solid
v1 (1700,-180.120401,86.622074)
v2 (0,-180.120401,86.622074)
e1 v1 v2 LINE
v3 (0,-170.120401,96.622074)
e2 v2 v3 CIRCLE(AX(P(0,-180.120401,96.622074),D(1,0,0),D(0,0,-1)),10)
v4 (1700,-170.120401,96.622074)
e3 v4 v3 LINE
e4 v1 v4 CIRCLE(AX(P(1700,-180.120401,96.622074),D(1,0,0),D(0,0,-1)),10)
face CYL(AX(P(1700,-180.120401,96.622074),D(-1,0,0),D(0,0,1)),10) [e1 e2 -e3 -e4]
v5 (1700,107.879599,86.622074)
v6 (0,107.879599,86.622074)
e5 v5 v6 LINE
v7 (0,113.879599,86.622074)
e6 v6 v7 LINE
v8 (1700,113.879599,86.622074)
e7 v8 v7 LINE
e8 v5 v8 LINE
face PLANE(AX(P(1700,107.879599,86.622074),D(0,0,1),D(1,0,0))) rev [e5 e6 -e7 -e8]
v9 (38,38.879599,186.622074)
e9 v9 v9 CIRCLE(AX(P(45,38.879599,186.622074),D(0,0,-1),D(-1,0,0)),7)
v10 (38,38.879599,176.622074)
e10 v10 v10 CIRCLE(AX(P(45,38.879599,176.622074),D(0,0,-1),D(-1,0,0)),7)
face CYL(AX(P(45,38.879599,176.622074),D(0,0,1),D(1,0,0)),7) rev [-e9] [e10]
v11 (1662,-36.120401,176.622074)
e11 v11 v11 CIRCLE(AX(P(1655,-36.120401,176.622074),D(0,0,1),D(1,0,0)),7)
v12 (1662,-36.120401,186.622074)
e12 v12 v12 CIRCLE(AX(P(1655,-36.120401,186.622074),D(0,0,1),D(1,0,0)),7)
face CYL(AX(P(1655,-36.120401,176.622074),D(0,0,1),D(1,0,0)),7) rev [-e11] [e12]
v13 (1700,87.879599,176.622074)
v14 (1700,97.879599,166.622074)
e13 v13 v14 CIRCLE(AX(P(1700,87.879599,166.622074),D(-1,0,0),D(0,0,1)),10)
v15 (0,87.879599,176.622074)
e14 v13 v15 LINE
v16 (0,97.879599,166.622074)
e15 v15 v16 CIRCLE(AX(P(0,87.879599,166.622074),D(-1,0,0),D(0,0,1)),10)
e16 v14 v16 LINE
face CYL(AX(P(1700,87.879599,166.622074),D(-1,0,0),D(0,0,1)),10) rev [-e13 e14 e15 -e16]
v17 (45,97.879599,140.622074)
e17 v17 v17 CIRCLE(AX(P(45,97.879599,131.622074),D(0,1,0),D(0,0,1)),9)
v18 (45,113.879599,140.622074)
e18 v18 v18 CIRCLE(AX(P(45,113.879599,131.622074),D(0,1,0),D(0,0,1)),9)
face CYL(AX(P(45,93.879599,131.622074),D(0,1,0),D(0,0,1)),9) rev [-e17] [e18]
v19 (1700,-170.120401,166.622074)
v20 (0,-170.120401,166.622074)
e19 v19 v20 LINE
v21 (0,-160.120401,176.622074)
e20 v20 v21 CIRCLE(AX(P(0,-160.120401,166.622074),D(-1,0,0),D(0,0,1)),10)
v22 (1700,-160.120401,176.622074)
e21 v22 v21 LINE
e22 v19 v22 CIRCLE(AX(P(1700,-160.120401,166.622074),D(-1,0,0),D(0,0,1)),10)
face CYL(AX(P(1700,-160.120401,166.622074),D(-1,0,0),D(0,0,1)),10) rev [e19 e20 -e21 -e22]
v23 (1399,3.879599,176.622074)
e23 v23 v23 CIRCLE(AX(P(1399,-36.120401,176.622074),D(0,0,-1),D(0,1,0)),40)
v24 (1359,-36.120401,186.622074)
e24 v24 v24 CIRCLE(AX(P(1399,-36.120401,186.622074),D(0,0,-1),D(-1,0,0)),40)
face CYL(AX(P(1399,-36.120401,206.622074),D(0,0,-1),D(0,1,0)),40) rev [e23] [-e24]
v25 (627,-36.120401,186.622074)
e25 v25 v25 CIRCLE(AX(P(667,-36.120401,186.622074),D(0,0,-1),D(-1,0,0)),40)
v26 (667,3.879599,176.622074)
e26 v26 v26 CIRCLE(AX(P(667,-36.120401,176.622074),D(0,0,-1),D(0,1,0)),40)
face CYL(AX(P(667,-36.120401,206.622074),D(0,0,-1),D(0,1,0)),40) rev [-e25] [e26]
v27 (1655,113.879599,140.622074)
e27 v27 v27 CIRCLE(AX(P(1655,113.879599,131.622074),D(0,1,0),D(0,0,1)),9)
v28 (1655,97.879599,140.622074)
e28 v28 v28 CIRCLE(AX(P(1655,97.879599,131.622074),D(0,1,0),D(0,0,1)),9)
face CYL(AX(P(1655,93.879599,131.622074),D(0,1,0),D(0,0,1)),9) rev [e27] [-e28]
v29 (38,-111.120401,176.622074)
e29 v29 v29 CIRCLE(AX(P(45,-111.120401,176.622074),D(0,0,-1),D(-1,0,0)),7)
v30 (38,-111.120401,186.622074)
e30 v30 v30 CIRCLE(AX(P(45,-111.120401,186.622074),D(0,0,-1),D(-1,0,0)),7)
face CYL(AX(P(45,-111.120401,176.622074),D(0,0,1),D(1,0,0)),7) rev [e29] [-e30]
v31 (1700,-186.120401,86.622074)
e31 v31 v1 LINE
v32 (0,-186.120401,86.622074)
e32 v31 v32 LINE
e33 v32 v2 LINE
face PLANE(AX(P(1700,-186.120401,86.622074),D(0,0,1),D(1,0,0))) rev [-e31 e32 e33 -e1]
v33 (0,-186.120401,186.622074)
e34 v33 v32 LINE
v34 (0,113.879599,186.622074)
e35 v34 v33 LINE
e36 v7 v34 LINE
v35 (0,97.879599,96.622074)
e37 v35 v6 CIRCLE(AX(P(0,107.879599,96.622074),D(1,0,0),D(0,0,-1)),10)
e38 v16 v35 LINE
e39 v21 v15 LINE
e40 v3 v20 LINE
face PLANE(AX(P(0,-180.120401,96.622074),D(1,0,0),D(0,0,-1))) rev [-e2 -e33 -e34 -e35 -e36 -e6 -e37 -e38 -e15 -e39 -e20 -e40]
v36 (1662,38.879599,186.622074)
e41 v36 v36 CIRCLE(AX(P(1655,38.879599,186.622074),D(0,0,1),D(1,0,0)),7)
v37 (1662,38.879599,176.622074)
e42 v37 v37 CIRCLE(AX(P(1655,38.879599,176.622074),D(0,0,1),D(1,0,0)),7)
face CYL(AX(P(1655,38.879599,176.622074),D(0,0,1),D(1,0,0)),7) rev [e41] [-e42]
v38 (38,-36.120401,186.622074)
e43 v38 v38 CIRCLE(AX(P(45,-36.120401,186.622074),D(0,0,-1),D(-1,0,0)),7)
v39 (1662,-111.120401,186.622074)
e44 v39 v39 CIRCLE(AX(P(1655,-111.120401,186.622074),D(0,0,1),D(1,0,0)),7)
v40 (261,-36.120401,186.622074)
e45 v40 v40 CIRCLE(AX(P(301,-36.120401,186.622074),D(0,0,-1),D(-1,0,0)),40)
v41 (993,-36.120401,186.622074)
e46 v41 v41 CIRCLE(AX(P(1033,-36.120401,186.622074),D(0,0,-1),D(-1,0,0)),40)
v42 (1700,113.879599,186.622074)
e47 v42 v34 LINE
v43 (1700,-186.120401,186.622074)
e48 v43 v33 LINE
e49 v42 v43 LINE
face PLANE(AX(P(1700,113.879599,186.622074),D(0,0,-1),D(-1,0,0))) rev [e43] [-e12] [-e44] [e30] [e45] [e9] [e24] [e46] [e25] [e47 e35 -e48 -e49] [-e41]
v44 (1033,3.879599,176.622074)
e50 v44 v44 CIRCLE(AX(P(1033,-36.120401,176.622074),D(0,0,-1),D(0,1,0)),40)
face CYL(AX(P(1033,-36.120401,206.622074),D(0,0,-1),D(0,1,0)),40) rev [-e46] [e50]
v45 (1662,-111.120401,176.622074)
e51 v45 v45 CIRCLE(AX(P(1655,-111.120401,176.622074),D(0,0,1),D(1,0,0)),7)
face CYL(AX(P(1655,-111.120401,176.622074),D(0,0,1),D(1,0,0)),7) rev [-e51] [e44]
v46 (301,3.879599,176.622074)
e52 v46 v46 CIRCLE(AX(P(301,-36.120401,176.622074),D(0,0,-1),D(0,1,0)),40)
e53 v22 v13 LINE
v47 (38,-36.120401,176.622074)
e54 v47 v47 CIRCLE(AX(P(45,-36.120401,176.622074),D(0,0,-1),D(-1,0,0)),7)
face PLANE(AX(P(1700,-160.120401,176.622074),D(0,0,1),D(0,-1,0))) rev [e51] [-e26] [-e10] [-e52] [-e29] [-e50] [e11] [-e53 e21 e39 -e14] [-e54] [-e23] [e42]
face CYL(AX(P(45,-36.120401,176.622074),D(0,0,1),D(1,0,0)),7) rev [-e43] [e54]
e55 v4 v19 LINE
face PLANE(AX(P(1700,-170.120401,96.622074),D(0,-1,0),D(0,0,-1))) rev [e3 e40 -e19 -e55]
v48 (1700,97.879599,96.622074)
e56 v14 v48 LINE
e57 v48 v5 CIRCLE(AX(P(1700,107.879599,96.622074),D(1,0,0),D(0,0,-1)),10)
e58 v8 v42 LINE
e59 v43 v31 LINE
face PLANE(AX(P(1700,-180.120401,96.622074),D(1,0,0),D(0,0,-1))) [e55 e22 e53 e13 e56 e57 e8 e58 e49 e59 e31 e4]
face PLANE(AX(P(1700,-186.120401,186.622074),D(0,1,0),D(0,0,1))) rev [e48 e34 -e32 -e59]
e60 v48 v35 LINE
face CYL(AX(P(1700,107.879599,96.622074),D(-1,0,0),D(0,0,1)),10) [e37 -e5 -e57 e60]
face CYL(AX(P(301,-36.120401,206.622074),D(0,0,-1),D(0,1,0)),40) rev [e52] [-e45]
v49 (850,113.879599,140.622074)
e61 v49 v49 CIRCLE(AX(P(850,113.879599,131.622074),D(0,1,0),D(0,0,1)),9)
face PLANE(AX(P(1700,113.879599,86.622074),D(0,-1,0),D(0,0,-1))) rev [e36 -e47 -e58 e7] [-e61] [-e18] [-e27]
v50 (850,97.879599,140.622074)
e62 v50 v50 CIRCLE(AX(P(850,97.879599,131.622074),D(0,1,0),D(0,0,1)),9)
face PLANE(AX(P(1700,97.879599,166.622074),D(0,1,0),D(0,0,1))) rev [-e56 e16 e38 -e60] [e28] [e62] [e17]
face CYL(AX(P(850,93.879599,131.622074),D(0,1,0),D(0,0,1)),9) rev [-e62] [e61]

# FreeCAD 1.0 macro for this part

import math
import FreeCAD as App
import Part
import Sketcher
from FreeCAD import Vector
Q = App.Units.Quantity

doc = App.newDocument("Part")
params = doc.addObject("Spreadsheet::Sheet", "Params")
for row, (alias, value) in enumerate([
    ("sketch1_radius", "10 mm"),
    ("sketch1_width", "300 mm"),
    ("sketch1_width2", "6 mm"),
    ("sketch1_height", "100 mm"),
    ("sketch1_height2", "70 mm"),
    ("pad1_length", "1700 mm"),
    ("sketch2_diameter", "14 mm"),
    ("pocket1_length", "10 mm"),
    ("sketch3_diameter", "18 mm"),
    ("pocket2_length", "20 mm"),
    ("linearpattern_pitch", "805 mm"),
    ("sketch4_diameter", "80 mm"),
    ("pocket3_length", "30 mm"),
    ("linearpattern2_pitch", "366 mm"),
], start=1):
    params.set(f"A{row}", alias)
    params.set(f"B{row}", "=" + value)
    params.setAlias(f"B{row}", alias)

body = doc.addObject("PartDesign::Body", "Body")

sketch1 = doc.addObject("Sketcher::SketchObject", "Sketch")
body.addObject(sketch1)
sketch1.AttachmentSupport = (doc.YZ_Plane, [""])
sketch1.MapMode = "FlatFace"
sketch1.addGeometry([
    Part.LineSegment(Vector(113.879599, 86.622074, 0), Vector(113.879599, 186.622074, 0)),
    Part.LineSegment(Vector(113.879599, 186.622074, 0), Vector(-186.120401, 186.622074, 0)),
    Part.LineSegment(Vector(-186.120401, 186.622074, 0), Vector(-186.120401, 86.622074, 0)),
    Part.LineSegment(Vector(-186.120401, 86.622074, 0), Vector(-180.120401, 86.622074, 0)),
    Part.ArcOfCircle(Part.Circle(Vector(-180.120401, 96.622074, 0), Vector(0, 0, 1), 10), math.radians(-90), math.radians(0)),
    Part.LineSegment(Vector(-170.120401, 96.622074, 0), Vector(-170.120401, 166.622074, 0)),
    Part.ArcOfCircle(Part.Circle(Vector(-160.120401, 166.622074, 0), Vector(0, 0, 1), 10), math.radians(90), math.radians(180)),
    Part.LineSegment(Vector(-160.120401, 176.622074, 0), Vector(87.879599, 176.622074, 0)),
    Part.ArcOfCircle(Part.Circle(Vector(87.879599, 166.622074, 0), Vector(0, 0, 1), 10), math.radians(0), math.radians(90)),
    Part.LineSegment(Vector(97.879599, 166.622074, 0), Vector(97.879599, 96.622074, 0)),
    Part.ArcOfCircle(Part.Circle(Vector(107.879599, 96.622074, 0), Vector(0, 0, 1), 10), math.radians(180), math.radians(270)),
    Part.LineSegment(Vector(107.879599, 86.622074, 0), Vector(113.879599, 86.622074, 0)),
], False)
sketch1.addConstraint([
    Sketcher.Constraint("Coincident", 0, 2, 1, 1),
    Sketcher.Constraint("Coincident", 1, 2, 2, 1),
    Sketcher.Constraint("Coincident", 2, 2, 3, 1),
    Sketcher.Constraint("Tangent", 3, 2, 4, 1),
    Sketcher.Constraint("Tangent", 4, 2, 5, 1),
    Sketcher.Constraint("Tangent", 5, 2, 6, 2),
    Sketcher.Constraint("Tangent", 6, 1, 7, 1),
    Sketcher.Constraint("Tangent", 7, 2, 8, 2),
    Sketcher.Constraint("Tangent", 8, 1, 9, 1),
    Sketcher.Constraint("Tangent", 9, 2, 10, 1),
    Sketcher.Constraint("Tangent", 10, 2, 11, 1),
    Sketcher.Constraint("Coincident", 11, 2, 0, 1),
    Sketcher.Constraint("Vertical", 0),
    Sketcher.Constraint("Horizontal", 1),
    Sketcher.Constraint("Vertical", 2),
    Sketcher.Constraint("Horizontal", 3),
    Sketcher.Constraint("Vertical", 5),
    Sketcher.Constraint("Horizontal", 7),
    Sketcher.Constraint("Vertical", 9),
    Sketcher.Constraint("Horizontal", 11),
    Sketcher.Constraint("Equal", 4, 6),
    Sketcher.Constraint("Equal", 6, 8),
    Sketcher.Constraint("Equal", 8, 10),
    Sketcher.Constraint("Horizontal", 4, 3, 10, 3),
    Sketcher.Constraint("Equal", 3, 11),
    Sketcher.Constraint("Radius", 4, Q("10 mm")),
    Sketcher.Constraint("DistanceX", 1, 2, 1, 1, Q("300 mm")),
    Sketcher.Constraint("DistanceX", 3, 1, 3, 2, Q("6 mm")),
    Sketcher.Constraint("DistanceY", 0, 1, 0, 2, Q("100 mm")),
    Sketcher.Constraint("DistanceY", 5, 1, 5, 2, Q("70 mm")),
    Sketcher.Constraint("DistanceX", 4, 3, -1, 1, Q("180.120401 mm")),
    Sketcher.Constraint("DistanceY", -1, 1, 4, 3, Q("96.622074 mm")),
])
sketch1.setExpression("Constraints[25]", "Params.sketch1_radius")
sketch1.setExpression("Constraints[26]", "Params.sketch1_width")
sketch1.setExpression("Constraints[27]", "Params.sketch1_width2")
sketch1.setExpression("Constraints[28]", "Params.sketch1_height")
sketch1.setExpression("Constraints[29]", "Params.sketch1_height2")
pad1 = doc.addObject("PartDesign::Pad", "Pad")
body.addObject(pad1)
pad1.Profile = sketch1
pad1.setExpression("Length", "Params.pad1_length")

sketch2 = doc.addObject("Sketcher::SketchObject", "Sketch001")
body.addObject(sketch2)
sketch2.AttachmentSupport = (doc.XY_Plane, [""])
sketch2.MapMode = "FlatFace"
sketch2.AttachmentOffset = App.Placement(Vector(0, 0, 186.622074), App.Rotation())
sketch2.addGeometry([
    Part.Circle(Vector(1655, 38.879599, 0), Vector(0, 0, 1), 7),
    Part.Circle(Vector(1655, -36.120401, 0), Vector(0, 0, 1), 7),
    Part.Circle(Vector(1655, -111.120401, 0), Vector(0, 0, 1), 7),
], False)
sketch2.addConstraint([
    Sketcher.Constraint("Equal", 0, 1),
    Sketcher.Constraint("Equal", 1, 2),
    Sketcher.Constraint("Vertical", 0, 3, 1, 3),
    Sketcher.Constraint("Vertical", 1, 3, 2, 3),
    Sketcher.Constraint("Diameter", 0, Q("14 mm")),
    Sketcher.Constraint("DistanceX", -1, 1, 0, 3, Q("1655 mm")),
    Sketcher.Constraint("DistanceY", 1, 3, 0, 3, Q("75 mm")),
    Sketcher.Constraint("DistanceY", 2, 3, 1, 3, Q("75 mm")),
    Sketcher.Constraint("DistanceY", -1, 1, 0, 3, Q("38.879599 mm")),
])
sketch2.setExpression("Constraints[4]", "Params.sketch2_diameter")
pocket1 = doc.addObject("PartDesign::Pocket", "Pocket")
body.addObject(pocket1)
pocket1.Profile = sketch2
pocket1.setExpression("Length", "Params.pocket1_length")
doc.recompute()

datumplane = doc.addObject("PartDesign::Plane", "DatumPlane")
body.addObject(datumplane)
datumplane.AttachmentSupport = (doc.YZ_Plane, [""])
datumplane.MapMode = "FlatFace"
datumplane.AttachmentOffset = App.Placement(Vector(0, 0, 850), App.Rotation())
mirrored = doc.addObject("PartDesign::Mirrored", "Mirrored")
body.addObject(mirrored)
mirrored.Originals = [pocket1]
mirrored.MirrorPlane = (datumplane, [""])
body.Tip = mirrored

sketch3 = doc.addObject("Sketcher::SketchObject", "Sketch002")
body.addObject(sketch3)
sketch3.AttachmentSupport = (doc.XZ_Plane, [""])
sketch3.MapMode = "FlatFace"
sketch3.AttachmentOffset = App.Placement(Vector(0, 0, -113.879599), App.Rotation())
sketch3.addGeometry(Part.Circle(Vector(45, 131.622074, 0), Vector(0, 0, 1), 9), False)
sketch3.addConstraint([
    Sketcher.Constraint("Diameter", 0, Q("18 mm")),
    Sketcher.Constraint("DistanceX", -1, 1, 0, 3, Q("45 mm")),
    Sketcher.Constraint("DistanceY", -1, 1, 0, 3, Q("131.622074 mm")),
])
sketch3.setExpression("Constraints[0]", "Params.sketch3_diameter")
pocket2 = doc.addObject("PartDesign::Pocket", "Pocket001")
body.addObject(pocket2)
pocket2.Profile = sketch3
pocket2.setExpression("Length", "Params.pocket2_length")
pocket2.Reversed = True
doc.recompute()

linearpattern = doc.addObject("PartDesign::LinearPattern", "LinearPattern")
body.addObject(linearpattern)
linearpattern.Originals = [pocket2]
linearpattern.Direction = (doc.X_Axis, [""])
linearpattern.Mode = "offset"
linearpattern.setExpression("Offset", "Params.linearpattern_pitch")
linearpattern.Occurrences = 3
body.Tip = linearpattern

sketch4 = doc.addObject("Sketcher::SketchObject", "Sketch003")
body.addObject(sketch4)
sketch4.AttachmentSupport = (doc.XY_Plane, [""])
sketch4.MapMode = "FlatFace"
sketch4.AttachmentOffset = App.Placement(Vector(0, 0, 176.622074), App.Rotation())
sketch4.addGeometry(Part.Circle(Vector(1399, -36.120401, 0), Vector(0, 0, 1), 40), False)
sketch4.addConstraint([
    Sketcher.Constraint("Diameter", 0, Q("80 mm")),
    Sketcher.Constraint("DistanceX", -1, 1, 0, 3, Q("1399 mm")),
    Sketcher.Constraint("DistanceY", 0, 3, -1, 1, Q("36.120401 mm")),
])
sketch4.setExpression("Constraints[0]", "Params.sketch4_diameter")
pocket3 = doc.addObject("PartDesign::Pocket", "Pocket002")
body.addObject(pocket3)
pocket3.Profile = sketch4
pocket3.setExpression("Length", "Params.pocket3_length")
pocket3.Reversed = True
doc.recompute()

linearpattern2 = doc.addObject("PartDesign::LinearPattern", "LinearPattern001")
body.addObject(linearpattern2)
linearpattern2.Originals = [pocket3]
linearpattern2.Direction = (doc.X_Axis, [""])
linearpattern2.Mode = "offset"
linearpattern2.setExpression("Offset", "Params.linearpattern2_pitch")
linearpattern2.Occurrences = 4
linearpattern2.Reversed = True
body.Tip = linearpattern2

doc.recompute()
